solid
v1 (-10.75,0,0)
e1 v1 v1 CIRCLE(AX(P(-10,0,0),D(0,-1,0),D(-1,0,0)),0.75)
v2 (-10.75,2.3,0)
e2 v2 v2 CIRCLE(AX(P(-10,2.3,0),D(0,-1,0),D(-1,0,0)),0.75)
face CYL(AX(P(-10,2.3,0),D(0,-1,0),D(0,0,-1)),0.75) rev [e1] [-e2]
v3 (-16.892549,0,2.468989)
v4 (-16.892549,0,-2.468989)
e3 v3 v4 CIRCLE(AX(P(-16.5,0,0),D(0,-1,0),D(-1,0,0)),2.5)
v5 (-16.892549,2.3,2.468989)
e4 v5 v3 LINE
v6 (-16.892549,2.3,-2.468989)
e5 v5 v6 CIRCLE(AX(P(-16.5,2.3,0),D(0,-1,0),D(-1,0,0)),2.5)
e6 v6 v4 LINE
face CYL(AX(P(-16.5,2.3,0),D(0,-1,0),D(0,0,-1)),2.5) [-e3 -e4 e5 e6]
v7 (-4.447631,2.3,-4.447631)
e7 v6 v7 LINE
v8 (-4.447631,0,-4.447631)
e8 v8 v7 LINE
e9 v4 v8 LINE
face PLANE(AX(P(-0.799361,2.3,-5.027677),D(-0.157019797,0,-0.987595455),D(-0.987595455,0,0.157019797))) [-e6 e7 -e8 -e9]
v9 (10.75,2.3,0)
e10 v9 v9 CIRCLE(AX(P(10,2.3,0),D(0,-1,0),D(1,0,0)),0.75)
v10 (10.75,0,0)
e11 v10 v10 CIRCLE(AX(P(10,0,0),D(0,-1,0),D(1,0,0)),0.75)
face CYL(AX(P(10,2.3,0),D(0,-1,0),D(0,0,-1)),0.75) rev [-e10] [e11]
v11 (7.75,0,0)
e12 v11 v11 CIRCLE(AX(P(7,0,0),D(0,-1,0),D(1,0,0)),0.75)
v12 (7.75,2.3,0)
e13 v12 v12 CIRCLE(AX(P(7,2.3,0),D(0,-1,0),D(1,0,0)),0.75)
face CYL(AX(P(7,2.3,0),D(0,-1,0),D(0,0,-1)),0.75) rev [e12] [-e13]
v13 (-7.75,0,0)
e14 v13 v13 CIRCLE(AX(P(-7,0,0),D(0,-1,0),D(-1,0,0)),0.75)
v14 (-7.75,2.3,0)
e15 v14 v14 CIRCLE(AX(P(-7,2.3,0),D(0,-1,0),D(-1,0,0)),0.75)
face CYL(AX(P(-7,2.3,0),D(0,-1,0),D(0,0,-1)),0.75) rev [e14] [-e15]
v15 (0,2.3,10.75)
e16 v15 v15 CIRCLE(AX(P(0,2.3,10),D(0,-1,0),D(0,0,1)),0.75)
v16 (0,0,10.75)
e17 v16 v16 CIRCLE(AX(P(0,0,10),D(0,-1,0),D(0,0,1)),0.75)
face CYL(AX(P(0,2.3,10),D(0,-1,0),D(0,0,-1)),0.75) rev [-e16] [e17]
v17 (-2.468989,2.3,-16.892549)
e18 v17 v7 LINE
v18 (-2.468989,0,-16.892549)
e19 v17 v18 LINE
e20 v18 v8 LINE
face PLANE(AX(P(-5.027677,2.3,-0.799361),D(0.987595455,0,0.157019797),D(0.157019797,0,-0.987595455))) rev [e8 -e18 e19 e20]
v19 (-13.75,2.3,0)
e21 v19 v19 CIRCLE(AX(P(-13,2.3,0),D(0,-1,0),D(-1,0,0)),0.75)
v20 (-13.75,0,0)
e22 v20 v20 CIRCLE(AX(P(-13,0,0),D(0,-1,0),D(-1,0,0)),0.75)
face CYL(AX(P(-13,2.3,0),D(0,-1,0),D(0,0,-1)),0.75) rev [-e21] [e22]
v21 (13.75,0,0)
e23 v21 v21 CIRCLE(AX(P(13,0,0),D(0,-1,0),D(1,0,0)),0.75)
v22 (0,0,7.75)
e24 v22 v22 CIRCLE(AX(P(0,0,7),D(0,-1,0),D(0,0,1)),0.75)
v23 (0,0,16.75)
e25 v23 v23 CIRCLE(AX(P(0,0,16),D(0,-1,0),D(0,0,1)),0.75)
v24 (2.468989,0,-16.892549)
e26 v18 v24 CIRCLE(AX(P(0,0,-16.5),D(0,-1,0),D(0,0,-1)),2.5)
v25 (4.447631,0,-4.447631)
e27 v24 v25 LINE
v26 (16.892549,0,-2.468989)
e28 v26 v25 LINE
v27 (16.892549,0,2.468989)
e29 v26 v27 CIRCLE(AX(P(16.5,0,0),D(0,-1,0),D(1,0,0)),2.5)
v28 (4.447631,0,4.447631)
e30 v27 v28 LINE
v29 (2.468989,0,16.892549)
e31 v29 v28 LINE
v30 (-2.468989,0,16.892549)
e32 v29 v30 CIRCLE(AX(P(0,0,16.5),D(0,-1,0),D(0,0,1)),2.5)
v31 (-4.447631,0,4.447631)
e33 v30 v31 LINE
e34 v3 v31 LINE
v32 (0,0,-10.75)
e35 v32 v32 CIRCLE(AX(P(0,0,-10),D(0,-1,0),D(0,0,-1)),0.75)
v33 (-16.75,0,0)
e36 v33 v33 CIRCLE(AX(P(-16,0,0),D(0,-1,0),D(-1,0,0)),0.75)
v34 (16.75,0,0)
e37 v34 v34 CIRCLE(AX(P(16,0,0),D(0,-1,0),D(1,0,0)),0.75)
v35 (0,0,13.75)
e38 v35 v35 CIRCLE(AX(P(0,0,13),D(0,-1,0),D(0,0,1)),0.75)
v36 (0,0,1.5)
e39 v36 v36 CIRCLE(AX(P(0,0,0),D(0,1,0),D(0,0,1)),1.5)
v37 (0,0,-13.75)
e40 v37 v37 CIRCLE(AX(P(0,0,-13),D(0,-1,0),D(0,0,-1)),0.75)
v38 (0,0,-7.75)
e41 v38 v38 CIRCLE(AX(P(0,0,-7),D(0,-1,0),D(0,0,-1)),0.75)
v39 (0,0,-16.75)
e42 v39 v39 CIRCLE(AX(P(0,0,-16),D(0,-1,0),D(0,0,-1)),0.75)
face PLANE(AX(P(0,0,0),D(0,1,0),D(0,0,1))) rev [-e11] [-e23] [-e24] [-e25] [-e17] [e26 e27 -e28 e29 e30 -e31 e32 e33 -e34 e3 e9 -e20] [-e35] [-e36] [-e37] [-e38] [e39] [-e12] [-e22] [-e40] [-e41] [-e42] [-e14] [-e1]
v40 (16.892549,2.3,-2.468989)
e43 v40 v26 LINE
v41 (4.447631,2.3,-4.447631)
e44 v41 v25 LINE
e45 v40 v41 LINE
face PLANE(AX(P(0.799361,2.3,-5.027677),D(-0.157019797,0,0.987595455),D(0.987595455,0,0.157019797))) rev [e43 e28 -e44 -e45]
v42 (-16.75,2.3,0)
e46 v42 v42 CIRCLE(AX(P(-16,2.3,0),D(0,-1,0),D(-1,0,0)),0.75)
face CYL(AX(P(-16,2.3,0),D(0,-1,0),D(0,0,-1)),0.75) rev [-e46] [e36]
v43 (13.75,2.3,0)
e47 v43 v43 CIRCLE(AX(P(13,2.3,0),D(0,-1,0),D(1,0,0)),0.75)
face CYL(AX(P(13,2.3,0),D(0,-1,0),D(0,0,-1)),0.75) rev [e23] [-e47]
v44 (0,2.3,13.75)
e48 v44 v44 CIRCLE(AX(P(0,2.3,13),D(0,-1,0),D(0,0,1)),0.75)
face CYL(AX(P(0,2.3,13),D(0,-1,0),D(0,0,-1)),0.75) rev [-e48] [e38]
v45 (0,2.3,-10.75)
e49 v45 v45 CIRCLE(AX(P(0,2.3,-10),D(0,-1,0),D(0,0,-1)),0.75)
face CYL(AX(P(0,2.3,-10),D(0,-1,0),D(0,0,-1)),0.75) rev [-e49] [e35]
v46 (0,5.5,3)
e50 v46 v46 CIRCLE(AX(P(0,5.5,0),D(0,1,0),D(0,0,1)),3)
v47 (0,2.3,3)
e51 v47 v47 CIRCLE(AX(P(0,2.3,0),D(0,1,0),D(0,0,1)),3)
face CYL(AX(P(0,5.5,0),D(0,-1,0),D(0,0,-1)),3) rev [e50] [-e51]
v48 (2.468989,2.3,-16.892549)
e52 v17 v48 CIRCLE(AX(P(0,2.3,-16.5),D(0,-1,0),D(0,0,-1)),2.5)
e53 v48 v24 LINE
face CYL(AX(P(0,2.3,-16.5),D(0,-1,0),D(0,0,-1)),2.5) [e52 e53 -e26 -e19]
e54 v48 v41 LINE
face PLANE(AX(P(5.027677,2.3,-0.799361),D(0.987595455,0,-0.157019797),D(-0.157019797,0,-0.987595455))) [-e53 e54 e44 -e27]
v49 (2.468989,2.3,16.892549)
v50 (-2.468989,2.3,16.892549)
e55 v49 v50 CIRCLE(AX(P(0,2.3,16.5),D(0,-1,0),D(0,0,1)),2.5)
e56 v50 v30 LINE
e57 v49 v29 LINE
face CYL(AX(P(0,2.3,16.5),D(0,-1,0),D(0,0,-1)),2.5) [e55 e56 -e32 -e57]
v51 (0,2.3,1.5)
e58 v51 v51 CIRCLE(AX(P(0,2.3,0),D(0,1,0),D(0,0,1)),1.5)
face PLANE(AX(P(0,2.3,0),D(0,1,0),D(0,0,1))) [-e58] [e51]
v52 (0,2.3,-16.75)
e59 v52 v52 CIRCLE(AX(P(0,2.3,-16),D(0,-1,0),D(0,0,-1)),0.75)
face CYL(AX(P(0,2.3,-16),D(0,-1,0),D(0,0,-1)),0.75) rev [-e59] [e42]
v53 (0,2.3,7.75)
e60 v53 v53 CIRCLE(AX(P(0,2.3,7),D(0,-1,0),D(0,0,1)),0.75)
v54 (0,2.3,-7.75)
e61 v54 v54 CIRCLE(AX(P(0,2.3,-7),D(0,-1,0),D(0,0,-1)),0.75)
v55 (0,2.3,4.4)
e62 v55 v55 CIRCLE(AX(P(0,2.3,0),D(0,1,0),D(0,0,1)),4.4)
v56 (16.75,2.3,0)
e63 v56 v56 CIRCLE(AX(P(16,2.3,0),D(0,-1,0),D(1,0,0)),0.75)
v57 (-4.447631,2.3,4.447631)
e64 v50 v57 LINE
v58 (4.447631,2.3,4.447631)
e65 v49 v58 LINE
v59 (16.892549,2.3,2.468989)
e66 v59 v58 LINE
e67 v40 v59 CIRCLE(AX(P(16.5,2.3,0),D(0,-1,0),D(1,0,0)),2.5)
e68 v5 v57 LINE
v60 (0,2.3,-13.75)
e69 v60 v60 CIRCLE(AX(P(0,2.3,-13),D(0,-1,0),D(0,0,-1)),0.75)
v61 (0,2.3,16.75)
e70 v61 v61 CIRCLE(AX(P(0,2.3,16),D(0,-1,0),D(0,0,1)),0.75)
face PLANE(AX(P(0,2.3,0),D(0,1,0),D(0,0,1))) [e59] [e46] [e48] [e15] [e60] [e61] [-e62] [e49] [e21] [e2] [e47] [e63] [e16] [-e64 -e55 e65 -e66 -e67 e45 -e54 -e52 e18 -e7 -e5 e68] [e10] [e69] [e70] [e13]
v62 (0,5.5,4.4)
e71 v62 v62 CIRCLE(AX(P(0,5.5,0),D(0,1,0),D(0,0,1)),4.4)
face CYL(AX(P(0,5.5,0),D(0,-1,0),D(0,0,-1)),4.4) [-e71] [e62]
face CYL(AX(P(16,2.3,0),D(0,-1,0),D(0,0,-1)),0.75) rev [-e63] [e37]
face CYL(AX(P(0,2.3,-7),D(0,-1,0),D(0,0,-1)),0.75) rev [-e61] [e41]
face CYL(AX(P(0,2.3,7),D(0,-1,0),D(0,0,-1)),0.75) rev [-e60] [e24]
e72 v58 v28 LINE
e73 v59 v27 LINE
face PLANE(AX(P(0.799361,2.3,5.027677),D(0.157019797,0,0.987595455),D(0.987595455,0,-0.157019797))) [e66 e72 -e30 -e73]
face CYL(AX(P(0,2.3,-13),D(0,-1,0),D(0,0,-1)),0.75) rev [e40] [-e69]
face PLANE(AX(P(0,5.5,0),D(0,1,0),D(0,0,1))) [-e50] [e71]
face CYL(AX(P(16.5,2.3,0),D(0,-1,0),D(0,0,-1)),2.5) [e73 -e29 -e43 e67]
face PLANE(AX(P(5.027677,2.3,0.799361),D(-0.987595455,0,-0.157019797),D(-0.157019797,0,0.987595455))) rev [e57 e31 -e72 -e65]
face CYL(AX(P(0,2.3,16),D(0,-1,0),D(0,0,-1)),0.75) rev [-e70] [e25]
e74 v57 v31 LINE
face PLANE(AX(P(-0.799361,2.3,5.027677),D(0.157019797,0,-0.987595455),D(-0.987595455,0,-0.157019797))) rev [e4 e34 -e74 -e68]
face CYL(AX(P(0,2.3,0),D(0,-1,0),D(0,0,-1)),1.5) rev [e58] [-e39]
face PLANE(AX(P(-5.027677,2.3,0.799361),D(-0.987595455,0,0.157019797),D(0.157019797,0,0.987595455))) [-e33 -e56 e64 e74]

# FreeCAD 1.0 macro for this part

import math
import FreeCAD as App
import Part
import Sketcher

V = App.Vector

doc = App.newDocument("Part")
body = doc.addObject("PartDesign::Body", "Body")

# Sketch on XZ plane
sketch1 = body.newObject("Sketcher::SketchObject", "Sketch")
sketch1.AttachmentSupport = (doc.getObject("XZ_Plane"), [""])
sketch1.MapMode = "FlatFace"
sketch1.addGeometry([
    Part.Circle(V(0, 0, 0), V(0, 0, 1), 6.1),
    Part.Circle(V(0, 0, 0), V(0, 0, 1), 1.5),
], False)
sketch1.addConstraint([
    Sketcher.Constraint("Coincident", 0, 3, -1, 1),
    Sketcher.Constraint("Coincident", 1, 3, -1, 1),
    Sketcher.Constraint("Diameter", 1, 3.0),
    Sketcher.Constraint("Diameter", 0, 12.2),
])
pad1 = body.newObject("PartDesign::Pad", "Pad")
pad1.Profile = sketch1
pad1.Length = 2.3
pad1.Reversed = True

# Sketch on XZ plane
sketch2 = body.newObject("Sketcher::SketchObject", "Sketch001")
sketch2.AttachmentSupport = (doc.getObject("XZ_Plane"), [""])
sketch2.MapMode = "FlatFace"
sketch2.AttachmentOffset = App.Placement(V(0, 0, -2.3), App.Rotation())
sketch2.addGeometry([
    Part.Circle(V(0, 0, 0), V(0, 0, 1), 4.4),
    Part.Circle(V(0, 0, 0), V(0, 0, 1), 3),
], False)
sketch2.addConstraint([
    Sketcher.Constraint("Coincident", 0, 3, -1, 1),
    Sketcher.Constraint("Coincident", 1, 3, -1, 1),
    Sketcher.Constraint("Diameter", 1, 6.0),
    Sketcher.Constraint("Diameter", 0, 8.8),
])
pad2 = body.newObject("PartDesign::Pad", "Pad001")
pad2.Profile = sketch2
pad2.Length = 3.2
pad2.Reversed = True

# Sketch on XZ plane
sketch3 = body.newObject("Sketcher::SketchObject", "Sketch002")
sketch3.AttachmentSupport = (doc.getObject("XZ_Plane"), [""])
sketch3.MapMode = "FlatFace"
sketch3.addGeometry([
    Part.LineSegment(V(-4.5, -4.118252, 0), V(-2.468989, -16.892549, 0)),  # 0
    Part.ArcOfCircle(Part.Circle(V(0, -16.5, 0), V(0, 0, 1), 2.5), math.radians(-170.966043), math.radians(-9.033957)),  # 1
    Part.LineSegment(V(2.468989, -16.892549, 0), V(4.5, -4.118252, 0)),  # 2
    Part.ArcOfCircle(Part.Circle(V(0, 0, 0), V(0, 0, 1), 6.1), math.radians(-137.536275), math.radians(-42.463725)),  # 3
    Part.Circle(V(0, -16, 0), V(0, 0, 1), 0.75),  # 4
    Part.Circle(V(0, -13, 0), V(0, 0, 1), 0.75),  # 5
    Part.Circle(V(0, -10, 0), V(0, 0, 1), 0.75),  # 6
    Part.Circle(V(0, -7, 0), V(0, 0, 1), 0.75),  # 7
], False)
sketch3.addConstraint([
    Sketcher.Constraint("Tangent", 0, 2, 1, 1),
    Sketcher.Constraint("Tangent", 1, 2, 2, 1),
    Sketcher.Constraint("Coincident", 2, 2, 3, 2),
    Sketcher.Constraint("Coincident", 3, 1, 0, 1),
    Sketcher.Constraint("Coincident", 3, 3, -1, 1),
    Sketcher.Constraint("Equal", 4, 5),
    Sketcher.Constraint("Equal", 5, 6),
    Sketcher.Constraint("Equal", 6, 7),
    Sketcher.Constraint("Symmetric", 0, 2, 1, 2, -2),
    Sketcher.Constraint("PointOnObject", 4, 3, -2),
    Sketcher.Constraint("PointOnObject", 5, 3, -2),
    Sketcher.Constraint("PointOnObject", 6, 3, -2),
    Sketcher.Constraint("PointOnObject", 7, 3, -2),
    Sketcher.Constraint("Diameter", 4, 1.5),
    Sketcher.Constraint("Radius", 1, 2.5),
    Sketcher.Constraint("Radius", 3, 6.1),
    Sketcher.Constraint("DistanceY", 4, 3, -1, 1, 16.0),
    Sketcher.Constraint("DistanceY", 5, 3, -1, 1, 13.0),
    Sketcher.Constraint("DistanceY", 6, 3, -1, 1, 10.0),
    Sketcher.Constraint("DistanceY", 7, 3, -1, 1, 7.0),
    Sketcher.Constraint("DistanceX", 3, 1, 2, 2, 9.0),
    Sketcher.Constraint("DistanceY", 1, 3, -1, 1, 16.5),
])
pad3 = body.newObject("PartDesign::Pad", "Pad002")
pad3.Profile = sketch3
pad3.Length = 2.3
pad3.Reversed = True
doc.recompute()

polarpattern = body.newObject("PartDesign::PolarPattern", "PolarPattern")
polarpattern.Originals = [pad3]
polarpattern.Axis = (doc.getObject("Y_Axis"), [""])
polarpattern.Angle = 360
polarpattern.Occurrences = 4
body.Tip = polarpattern

doc.recompute()
